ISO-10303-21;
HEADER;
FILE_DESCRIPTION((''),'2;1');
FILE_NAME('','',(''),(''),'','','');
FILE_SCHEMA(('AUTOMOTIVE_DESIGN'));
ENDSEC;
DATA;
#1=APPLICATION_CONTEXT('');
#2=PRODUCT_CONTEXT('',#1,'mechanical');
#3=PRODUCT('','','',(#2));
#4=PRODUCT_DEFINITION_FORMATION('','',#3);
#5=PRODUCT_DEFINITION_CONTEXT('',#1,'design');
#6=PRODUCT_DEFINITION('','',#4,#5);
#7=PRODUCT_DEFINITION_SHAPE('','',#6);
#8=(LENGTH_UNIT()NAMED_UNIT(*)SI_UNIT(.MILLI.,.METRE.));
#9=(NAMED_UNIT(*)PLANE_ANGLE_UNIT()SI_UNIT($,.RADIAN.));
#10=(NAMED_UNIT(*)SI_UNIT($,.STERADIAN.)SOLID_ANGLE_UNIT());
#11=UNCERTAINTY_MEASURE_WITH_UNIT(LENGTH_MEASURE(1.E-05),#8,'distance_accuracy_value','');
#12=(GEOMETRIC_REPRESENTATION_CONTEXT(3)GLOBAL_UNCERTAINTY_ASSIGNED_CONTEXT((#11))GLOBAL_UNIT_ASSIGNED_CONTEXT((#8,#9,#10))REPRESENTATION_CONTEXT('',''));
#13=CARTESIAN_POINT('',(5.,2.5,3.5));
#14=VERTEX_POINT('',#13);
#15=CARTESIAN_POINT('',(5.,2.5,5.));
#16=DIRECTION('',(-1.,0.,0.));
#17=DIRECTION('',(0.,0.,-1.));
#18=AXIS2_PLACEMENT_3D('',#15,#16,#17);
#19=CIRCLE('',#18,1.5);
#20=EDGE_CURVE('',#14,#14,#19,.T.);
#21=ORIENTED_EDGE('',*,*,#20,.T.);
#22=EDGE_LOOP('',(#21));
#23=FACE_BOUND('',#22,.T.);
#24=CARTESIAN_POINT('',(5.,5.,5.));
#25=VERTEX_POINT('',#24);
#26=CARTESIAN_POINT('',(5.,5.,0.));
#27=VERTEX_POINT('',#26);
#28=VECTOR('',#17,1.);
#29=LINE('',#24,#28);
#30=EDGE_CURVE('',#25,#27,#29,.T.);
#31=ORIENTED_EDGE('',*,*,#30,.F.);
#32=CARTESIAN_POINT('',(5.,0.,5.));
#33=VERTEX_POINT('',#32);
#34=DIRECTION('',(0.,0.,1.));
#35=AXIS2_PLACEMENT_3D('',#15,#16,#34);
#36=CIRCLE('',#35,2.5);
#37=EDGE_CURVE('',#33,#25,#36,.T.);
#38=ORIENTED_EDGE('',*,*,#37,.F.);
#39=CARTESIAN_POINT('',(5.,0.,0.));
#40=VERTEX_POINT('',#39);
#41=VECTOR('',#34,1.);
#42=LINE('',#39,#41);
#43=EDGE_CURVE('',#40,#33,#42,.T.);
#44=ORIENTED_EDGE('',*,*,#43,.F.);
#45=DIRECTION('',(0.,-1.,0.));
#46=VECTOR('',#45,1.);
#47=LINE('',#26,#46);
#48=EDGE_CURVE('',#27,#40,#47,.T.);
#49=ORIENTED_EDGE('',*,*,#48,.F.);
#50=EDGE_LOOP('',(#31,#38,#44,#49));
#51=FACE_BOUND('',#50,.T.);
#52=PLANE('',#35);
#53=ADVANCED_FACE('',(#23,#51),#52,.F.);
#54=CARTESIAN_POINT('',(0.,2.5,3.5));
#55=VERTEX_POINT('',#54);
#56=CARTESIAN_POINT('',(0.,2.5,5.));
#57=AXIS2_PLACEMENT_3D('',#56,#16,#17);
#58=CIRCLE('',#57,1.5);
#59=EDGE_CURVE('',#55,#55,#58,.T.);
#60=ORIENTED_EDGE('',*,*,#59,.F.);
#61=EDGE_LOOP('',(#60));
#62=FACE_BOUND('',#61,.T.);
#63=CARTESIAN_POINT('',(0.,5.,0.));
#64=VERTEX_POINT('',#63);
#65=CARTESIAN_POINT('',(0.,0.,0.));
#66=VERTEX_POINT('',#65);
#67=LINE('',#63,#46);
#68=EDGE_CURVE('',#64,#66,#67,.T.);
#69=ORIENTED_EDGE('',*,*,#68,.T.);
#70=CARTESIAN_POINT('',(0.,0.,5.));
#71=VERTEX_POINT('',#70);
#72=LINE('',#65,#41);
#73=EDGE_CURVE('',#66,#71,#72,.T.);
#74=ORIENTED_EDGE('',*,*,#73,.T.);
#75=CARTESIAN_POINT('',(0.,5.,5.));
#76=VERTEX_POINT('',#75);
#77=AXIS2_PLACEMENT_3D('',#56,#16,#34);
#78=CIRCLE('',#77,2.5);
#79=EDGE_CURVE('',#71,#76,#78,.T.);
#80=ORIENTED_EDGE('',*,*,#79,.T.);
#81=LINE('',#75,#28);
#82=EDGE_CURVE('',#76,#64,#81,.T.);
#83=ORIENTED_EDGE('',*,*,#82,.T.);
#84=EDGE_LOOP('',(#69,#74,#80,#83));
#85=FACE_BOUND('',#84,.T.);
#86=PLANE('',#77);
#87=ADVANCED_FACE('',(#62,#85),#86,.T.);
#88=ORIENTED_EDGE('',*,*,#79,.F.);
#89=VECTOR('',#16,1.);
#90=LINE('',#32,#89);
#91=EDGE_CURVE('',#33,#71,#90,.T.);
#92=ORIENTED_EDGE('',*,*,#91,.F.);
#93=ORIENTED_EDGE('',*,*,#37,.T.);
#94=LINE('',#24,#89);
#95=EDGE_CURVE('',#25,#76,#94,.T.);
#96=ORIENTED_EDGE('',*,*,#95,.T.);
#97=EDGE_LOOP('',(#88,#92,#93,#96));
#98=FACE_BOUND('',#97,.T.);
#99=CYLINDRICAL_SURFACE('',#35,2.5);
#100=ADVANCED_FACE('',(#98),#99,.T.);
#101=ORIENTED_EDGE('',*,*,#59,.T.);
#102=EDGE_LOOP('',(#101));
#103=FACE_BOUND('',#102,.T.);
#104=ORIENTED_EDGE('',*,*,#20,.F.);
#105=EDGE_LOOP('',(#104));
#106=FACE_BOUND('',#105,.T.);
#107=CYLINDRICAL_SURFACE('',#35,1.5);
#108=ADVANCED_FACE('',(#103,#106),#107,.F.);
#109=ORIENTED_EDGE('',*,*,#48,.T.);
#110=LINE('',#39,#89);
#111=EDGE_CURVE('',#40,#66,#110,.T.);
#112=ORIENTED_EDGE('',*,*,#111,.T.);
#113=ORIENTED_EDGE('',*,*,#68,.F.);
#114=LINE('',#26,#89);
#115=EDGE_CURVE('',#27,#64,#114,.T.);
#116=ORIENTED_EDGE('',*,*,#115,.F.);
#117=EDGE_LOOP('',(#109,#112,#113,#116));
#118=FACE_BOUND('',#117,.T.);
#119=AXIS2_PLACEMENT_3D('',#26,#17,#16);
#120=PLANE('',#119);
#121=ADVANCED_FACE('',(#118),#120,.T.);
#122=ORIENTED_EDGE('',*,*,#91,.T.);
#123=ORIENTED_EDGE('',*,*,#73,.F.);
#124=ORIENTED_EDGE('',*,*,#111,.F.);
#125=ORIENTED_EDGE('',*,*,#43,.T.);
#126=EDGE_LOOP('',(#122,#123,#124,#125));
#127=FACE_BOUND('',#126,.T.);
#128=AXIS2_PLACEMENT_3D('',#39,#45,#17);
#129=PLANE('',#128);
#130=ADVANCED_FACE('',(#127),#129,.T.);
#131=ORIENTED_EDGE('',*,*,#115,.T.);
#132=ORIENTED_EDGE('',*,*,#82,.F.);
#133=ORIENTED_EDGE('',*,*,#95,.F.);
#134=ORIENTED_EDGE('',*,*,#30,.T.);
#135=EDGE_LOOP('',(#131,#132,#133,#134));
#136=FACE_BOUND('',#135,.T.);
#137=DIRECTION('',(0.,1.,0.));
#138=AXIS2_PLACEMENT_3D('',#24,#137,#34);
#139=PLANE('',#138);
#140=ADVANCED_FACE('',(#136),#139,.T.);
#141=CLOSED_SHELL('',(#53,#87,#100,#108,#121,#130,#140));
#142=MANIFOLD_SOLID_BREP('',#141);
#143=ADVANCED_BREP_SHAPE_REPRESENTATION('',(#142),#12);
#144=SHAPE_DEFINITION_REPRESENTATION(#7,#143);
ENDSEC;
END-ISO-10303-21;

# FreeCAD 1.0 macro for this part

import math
import FreeCAD as App
import Part
import Sketcher
Q = App.Units.Quantity

doc = App.newDocument("Part")
params = doc.addObject("Spreadsheet::Sheet", "Params")
for row, (alias, value) in enumerate([
    ("sketch1_diameter", "3 mm"),
    ("sketch1_radius", "2.5 mm"),
    ("pad1_length", "5 mm"),
], start=1):
    params.set(f"A{row}", alias)
    params.set(f"B{row}", "=" + value)
    params.setAlias(f"B{row}", alias)

body = doc.addObject("PartDesign::Body", "Body")

sketch1 = doc.addObject("Sketcher::SketchObject", "Sketch")
body.addObject(sketch1)
sketch1.AttachmentSupport = (doc.YZ_Plane, [""])
sketch1.MapMode = "FlatFace"
sketch1.addGeometry([
    Part.LineSegment(App.Vector(5, 5, 0), App.Vector(5, 0, 0)),
    Part.LineSegment(App.Vector(5, 0, 0), App.Vector(0, 0, 0)),
    Part.LineSegment(App.Vector(0, 0, 0), App.Vector(0, 5, 0)),
    Part.ArcOfCircle(Part.Circle(App.Vector(2.5, 5, 0), App.Vector(0, 0, 1), 2.5), math.radians(0), math.radians(180)),
    Part.Circle(App.Vector(2.5, 5, 0), App.Vector(0, 0, 1), 1.5),
], False)
sketch1.addConstraint([
    Sketcher.Constraint("Coincident", 0, 2, 1, 1),
    Sketcher.Constraint("Coincident", 1, 2, 2, 1),
    Sketcher.Constraint("Tangent", 2, 2, 3, 2),
    Sketcher.Constraint("Tangent", 3, 1, 0, 1),
    Sketcher.Constraint("Vertical", 0),
    Sketcher.Constraint("Horizontal", 1),
    Sketcher.Constraint("Vertical", 2),
    Sketcher.Constraint("Coincident", 1, 2, -1, 1),
    Sketcher.Constraint("Coincident", 4, 3, 3, 3),
    Sketcher.Constraint("Equal", 1, 0),
    Sketcher.Constraint("Diameter", 4, Q("3 mm")),
    Sketcher.Constraint("Radius", 3, Q("2.5 mm")),
])
sketch1.setExpression("Constraints[10]", "Params.sketch1_diameter")
sketch1.setExpression("Constraints[11]", "Params.sketch1_radius")
pad1 = doc.addObject("PartDesign::Pad", "Pad")
body.addObject(pad1)
pad1.Profile = sketch1
pad1.setExpression("Length", "Params.pad1_length")

doc.recompute()
